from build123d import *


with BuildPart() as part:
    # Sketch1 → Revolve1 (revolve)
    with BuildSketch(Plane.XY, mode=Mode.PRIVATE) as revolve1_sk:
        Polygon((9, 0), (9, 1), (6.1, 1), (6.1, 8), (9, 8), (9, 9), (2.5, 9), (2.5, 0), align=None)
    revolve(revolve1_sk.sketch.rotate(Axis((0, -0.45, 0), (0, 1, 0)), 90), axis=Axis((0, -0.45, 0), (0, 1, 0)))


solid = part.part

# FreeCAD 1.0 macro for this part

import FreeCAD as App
import Part
import Sketcher

V = App.Vector


def add_polygon(sketch, points):
    """Adds a closed chain of lines whose ends are joined by coincident constraints."""
    first, n = sketch.GeometryCount, len(points)
    for a, b in zip(points, points[1:] + points[:1]):
        sketch.addGeometry(Part.LineSegment(App.Vector(*a, 0), App.Vector(*b, 0)), False)
    for i in range(n):
        sketch.addConstraint(Sketcher.Constraint("Coincident", first + i, 2, first + (i + 1) % n, 1))

doc = App.newDocument("Part")
params = doc.addObject("Spreadsheet::Sheet", "Params")
for row, (alias, value) in enumerate([
    ("sketch1_height", "1 mm"),
    ("sketch1_height2", "7 mm"),
    ("sketch1_width", "2.9 mm"),
    ("sketch1_width2", "6.5 mm"),
    ("revolution_angle", "360 deg"),
], start=1):
    params.set(f"A{row}", alias)
    params.set(f"B{row}", "=" + value)
    params.setAlias(f"B{row}", alias)

body = doc.addObject("PartDesign::Body", "Body")

# Sketch on XY plane
sketch1 = body.newObject("Sketcher::SketchObject", "Sketch")
sketch1.AttachmentSupport = (doc.getObject("XY_Plane"), [""])
sketch1.MapMode = "FlatFace"
add_polygon(sketch1, [(9, 0), (9, 1), (6.1, 1), (6.1, 8), (9, 8), (9, 9), (2.5, 9), (2.5, 0)])  # lines 0-7
sketch1.addConstraint([
    Sketcher.Constraint("Vertical", 0),
    Sketcher.Constraint("Horizontal", 1),
    Sketcher.Constraint("Vertical", 2),
    Sketcher.Constraint("Horizontal", 3),
    Sketcher.Constraint("Vertical", 4),
    Sketcher.Constraint("Horizontal", 5),
    Sketcher.Constraint("Vertical", 6),
    Sketcher.Constraint("Horizontal", 7),
    Sketcher.Constraint("PointOnObject", 6, 2, -1),
    Sketcher.Constraint("Vertical", 0, 2, 3, 2),
    Sketcher.Constraint("Equal", 0, 4),
    Sketcher.Constraint("DistanceY", 0, 1, 0, 2, 1.0),
    Sketcher.Constraint("DistanceY", 2, 1, 2, 2, 7.0),
    Sketcher.Constraint("DistanceX", 1, 2, 1, 1, 2.9),
    Sketcher.Constraint("DistanceX", 5, 2, 5, 1, 6.5),
    Sketcher.Constraint("DistanceX", -1, 1, 0, 2, 9.0),
])
sketch1.setExpression("Constraints[19]", "Params.sketch1_height")
sketch1.setExpression("Constraints[20]", "Params.sketch1_height2")
sketch1.setExpression("Constraints[21]", "Params.sketch1_width")
sketch1.setExpression("Constraints[22]", "Params.sketch1_width2")
revolution = body.newObject("PartDesign::Revolution", "Revolution")
revolution.Profile = sketch1
revolution.ReferenceAxis = (sketch1, ["V_Axis"])
revolution.setExpression("Angle", "Params.revolution_angle")

doc.recompute()
